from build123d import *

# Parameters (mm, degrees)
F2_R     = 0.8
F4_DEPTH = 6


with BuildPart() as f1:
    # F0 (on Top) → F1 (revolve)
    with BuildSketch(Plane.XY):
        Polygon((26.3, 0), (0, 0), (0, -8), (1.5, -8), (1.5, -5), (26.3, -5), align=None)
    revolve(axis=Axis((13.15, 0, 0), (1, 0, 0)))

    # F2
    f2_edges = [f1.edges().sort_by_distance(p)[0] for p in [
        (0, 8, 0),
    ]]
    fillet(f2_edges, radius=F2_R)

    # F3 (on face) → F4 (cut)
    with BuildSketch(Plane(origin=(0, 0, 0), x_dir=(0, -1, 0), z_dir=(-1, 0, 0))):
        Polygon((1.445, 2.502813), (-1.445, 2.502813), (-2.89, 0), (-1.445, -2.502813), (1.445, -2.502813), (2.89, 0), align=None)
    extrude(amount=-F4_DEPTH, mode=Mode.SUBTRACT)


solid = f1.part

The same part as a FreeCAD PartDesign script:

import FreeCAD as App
import Part
import Sketcher
from FreeCAD import Vector
Q = App.Units.Quantity


def edges_at(feature, points):
    """Names of the edges that pass closest to the given points."""
    edges = feature.Shape.Edges
    near = lambda p: min(range(len(edges)), key=lambda i: edges[i].distToShape(Part.Vertex(*p))[0])
    return sorted({f"Edge{near(p) + 1}" for p in points})

doc = App.newDocument("Part")
params = doc.addObject("Spreadsheet::Sheet", "Params")
for row, (alias, value) in enumerate([
    ("sketch1_height", "8 mm"),
    ("sketch1_height2", "3 mm"),
    ("sketch1_width", "26.3 mm"),
    ("sketch1_width2", "1.5 mm"),
    ("revolution_angle", "360 deg"),
    ("fillet_radius", "0.8 mm"),
    ("sketch2_width", "2.89 mm"),
    ("sketch2_length", "2.89 mm"),
    ("pocket1_length", "6 mm"),
], start=1):
    params.set(f"A{row}", alias)
    params.set(f"B{row}", "=" + value)
    params.setAlias(f"B{row}", alias)

body = doc.addObject("PartDesign::Body", "Body")

# Sketch on XY plane
sketch1 = body.newObject("Sketcher::SketchObject", "Sketch")
sketch1.AttachmentSupport = (doc.getObject("XY_Plane"), [""])
sketch1.MapMode = "FlatFace"
sketch1.addGeometry([
    Part.LineSegment(Vector(26.3, 0, 0), Vector(0, 0, 0)),  # 0
    Part.LineSegment(Vector(0, 0, 0), Vector(0, -8, 0)),  # 1
    Part.LineSegment(Vector(0, -8, 0), Vector(1.5, -8, 0)),  # 2
    Part.LineSegment(Vector(1.5, -8, 0), Vector(1.5, -5, 0)),  # 3
    Part.LineSegment(Vector(1.5, -5, 0), Vector(26.3, -5, 0)),  # 4
    Part.LineSegment(Vector(26.3, -5, 0), Vector(26.3, 0, 0)),  # 5
], False)
sketch1.addConstraint([
    Sketcher.Constraint("Coincident", 0, 2, 1, 1),
    Sketcher.Constraint("Coincident", 1, 2, 2, 1),
    Sketcher.Constraint("Coincident", 2, 2, 3, 1),
    Sketcher.Constraint("Coincident", 3, 2, 4, 1),
    Sketcher.Constraint("Coincident", 4, 2, 5, 1),
    Sketcher.Constraint("Coincident", 5, 2, 0, 1),
    Sketcher.Constraint("Horizontal", 0),
    Sketcher.Constraint("Vertical", 1),
    Sketcher.Constraint("Horizontal", 2),
    Sketcher.Constraint("Vertical", 3),
    Sketcher.Constraint("Horizontal", 4),
    Sketcher.Constraint("Vertical", 5),
    Sketcher.Constraint("Coincident", 0, 2, -1, 1),
    Sketcher.Constraint("DistanceY", 1, 2, 1, 1, 8.0),
    Sketcher.Constraint("DistanceY", 3, 1, 3, 2, 3.0),
    Sketcher.Constraint("DistanceX", 0, 2, 0, 1, 26.3),
    Sketcher.Constraint("DistanceX", 2, 1, 2, 2, 1.5),
])
sketch1.setExpression("Constraints[13]", "Params.sketch1_height")
sketch1.setExpression("Constraints[14]", "Params.sketch1_height2")
sketch1.setExpression("Constraints[15]", "Params.sketch1_width")
sketch1.setExpression("Constraints[16]", "Params.sketch1_width2")
revolution = body.newObject("PartDesign::Revolution", "Revolution")
revolution.Profile = sketch1
revolution.ReferenceAxis = (sketch1, ["H_Axis"])
revolution.setExpression("Angle", "Params.revolution_angle")
doc.recompute()

fillet = body.newObject("PartDesign::Fillet", "Fillet")
fillet.Base = (revolution, edges_at(revolution, [(0, 8, 0)]))
fillet.setExpression("Radius", "Params.fillet_radius")

# Sketch on YZ plane
sketch2 = body.newObject("Sketcher::SketchObject", "Sketch001")
sketch2.AttachmentSupport = (doc.getObject("YZ_Plane"), [""])
sketch2.MapMode = "FlatFace"
sketch2.addGeometry([
    Part.LineSegment(Vector(-1.445, 2.502813, 0), Vector(1.445, 2.502813, 0)),  # 0
    Part.LineSegment(Vector(1.445, 2.502813, 0), Vector(2.89, 0, 0)),  # 1
    Part.LineSegment(Vector(2.89, 0, 0), Vector(1.445, -2.502813, 0)),  # 2
    Part.LineSegment(Vector(1.445, -2.502813, 0), Vector(-1.445, -2.502813, 0)),  # 3
    Part.LineSegment(Vector(-1.445, -2.502813, 0), Vector(-2.89, 0, 0)),  # 4
    Part.LineSegment(Vector(-2.89, 0, 0), Vector(-1.445, 2.502813, 0)),  # 5
], False)
sketch2.addConstraint([
    Sketcher.Constraint("Coincident", 0, 2, 1, 1),
    Sketcher.Constraint("Coincident", 1, 2, 2, 1),
    Sketcher.Constraint("Coincident", 2, 2, 3, 1),
    Sketcher.Constraint("Coincident", 3, 2, 4, 1),
    Sketcher.Constraint("Coincident", 4, 2, 5, 1),
    Sketcher.Constraint("Coincident", 5, 2, 0, 1),
    Sketcher.Constraint("Horizontal", 0),
    Sketcher.Constraint("Horizontal", 3),
    Sketcher.Constraint("Symmetric", 0, 2, 3, 2, -1, 1),
    Sketcher.Constraint("Symmetric", 1, 2, 4, 2, -1, 1),
    Sketcher.Constraint("PointOnObject", 1, 2, -1),
    Sketcher.Constraint("Parallel", 2, 5),
    Sketcher.Constraint("Vertical", 0, 2, 2, 2),
    Sketcher.Constraint("Angle", 1, Q("-59.999996 deg")),
    Sketcher.Constraint("DistanceX", 0, 1, 0, 2, 2.89),
    Sketcher.Constraint("Distance", 1, 2.89),
])
sketch2.setExpression("Constraints[14]", "Params.sketch2_width")
sketch2.setExpression("Constraints[15]", "Params.sketch2_length")
pocket1 = body.newObject("PartDesign::Pocket", "Pocket")
pocket1.Profile = sketch2
pocket1.setExpression("Length", "Params.pocket1_length")
pocket1.Reversed = True

doc.recompute()
